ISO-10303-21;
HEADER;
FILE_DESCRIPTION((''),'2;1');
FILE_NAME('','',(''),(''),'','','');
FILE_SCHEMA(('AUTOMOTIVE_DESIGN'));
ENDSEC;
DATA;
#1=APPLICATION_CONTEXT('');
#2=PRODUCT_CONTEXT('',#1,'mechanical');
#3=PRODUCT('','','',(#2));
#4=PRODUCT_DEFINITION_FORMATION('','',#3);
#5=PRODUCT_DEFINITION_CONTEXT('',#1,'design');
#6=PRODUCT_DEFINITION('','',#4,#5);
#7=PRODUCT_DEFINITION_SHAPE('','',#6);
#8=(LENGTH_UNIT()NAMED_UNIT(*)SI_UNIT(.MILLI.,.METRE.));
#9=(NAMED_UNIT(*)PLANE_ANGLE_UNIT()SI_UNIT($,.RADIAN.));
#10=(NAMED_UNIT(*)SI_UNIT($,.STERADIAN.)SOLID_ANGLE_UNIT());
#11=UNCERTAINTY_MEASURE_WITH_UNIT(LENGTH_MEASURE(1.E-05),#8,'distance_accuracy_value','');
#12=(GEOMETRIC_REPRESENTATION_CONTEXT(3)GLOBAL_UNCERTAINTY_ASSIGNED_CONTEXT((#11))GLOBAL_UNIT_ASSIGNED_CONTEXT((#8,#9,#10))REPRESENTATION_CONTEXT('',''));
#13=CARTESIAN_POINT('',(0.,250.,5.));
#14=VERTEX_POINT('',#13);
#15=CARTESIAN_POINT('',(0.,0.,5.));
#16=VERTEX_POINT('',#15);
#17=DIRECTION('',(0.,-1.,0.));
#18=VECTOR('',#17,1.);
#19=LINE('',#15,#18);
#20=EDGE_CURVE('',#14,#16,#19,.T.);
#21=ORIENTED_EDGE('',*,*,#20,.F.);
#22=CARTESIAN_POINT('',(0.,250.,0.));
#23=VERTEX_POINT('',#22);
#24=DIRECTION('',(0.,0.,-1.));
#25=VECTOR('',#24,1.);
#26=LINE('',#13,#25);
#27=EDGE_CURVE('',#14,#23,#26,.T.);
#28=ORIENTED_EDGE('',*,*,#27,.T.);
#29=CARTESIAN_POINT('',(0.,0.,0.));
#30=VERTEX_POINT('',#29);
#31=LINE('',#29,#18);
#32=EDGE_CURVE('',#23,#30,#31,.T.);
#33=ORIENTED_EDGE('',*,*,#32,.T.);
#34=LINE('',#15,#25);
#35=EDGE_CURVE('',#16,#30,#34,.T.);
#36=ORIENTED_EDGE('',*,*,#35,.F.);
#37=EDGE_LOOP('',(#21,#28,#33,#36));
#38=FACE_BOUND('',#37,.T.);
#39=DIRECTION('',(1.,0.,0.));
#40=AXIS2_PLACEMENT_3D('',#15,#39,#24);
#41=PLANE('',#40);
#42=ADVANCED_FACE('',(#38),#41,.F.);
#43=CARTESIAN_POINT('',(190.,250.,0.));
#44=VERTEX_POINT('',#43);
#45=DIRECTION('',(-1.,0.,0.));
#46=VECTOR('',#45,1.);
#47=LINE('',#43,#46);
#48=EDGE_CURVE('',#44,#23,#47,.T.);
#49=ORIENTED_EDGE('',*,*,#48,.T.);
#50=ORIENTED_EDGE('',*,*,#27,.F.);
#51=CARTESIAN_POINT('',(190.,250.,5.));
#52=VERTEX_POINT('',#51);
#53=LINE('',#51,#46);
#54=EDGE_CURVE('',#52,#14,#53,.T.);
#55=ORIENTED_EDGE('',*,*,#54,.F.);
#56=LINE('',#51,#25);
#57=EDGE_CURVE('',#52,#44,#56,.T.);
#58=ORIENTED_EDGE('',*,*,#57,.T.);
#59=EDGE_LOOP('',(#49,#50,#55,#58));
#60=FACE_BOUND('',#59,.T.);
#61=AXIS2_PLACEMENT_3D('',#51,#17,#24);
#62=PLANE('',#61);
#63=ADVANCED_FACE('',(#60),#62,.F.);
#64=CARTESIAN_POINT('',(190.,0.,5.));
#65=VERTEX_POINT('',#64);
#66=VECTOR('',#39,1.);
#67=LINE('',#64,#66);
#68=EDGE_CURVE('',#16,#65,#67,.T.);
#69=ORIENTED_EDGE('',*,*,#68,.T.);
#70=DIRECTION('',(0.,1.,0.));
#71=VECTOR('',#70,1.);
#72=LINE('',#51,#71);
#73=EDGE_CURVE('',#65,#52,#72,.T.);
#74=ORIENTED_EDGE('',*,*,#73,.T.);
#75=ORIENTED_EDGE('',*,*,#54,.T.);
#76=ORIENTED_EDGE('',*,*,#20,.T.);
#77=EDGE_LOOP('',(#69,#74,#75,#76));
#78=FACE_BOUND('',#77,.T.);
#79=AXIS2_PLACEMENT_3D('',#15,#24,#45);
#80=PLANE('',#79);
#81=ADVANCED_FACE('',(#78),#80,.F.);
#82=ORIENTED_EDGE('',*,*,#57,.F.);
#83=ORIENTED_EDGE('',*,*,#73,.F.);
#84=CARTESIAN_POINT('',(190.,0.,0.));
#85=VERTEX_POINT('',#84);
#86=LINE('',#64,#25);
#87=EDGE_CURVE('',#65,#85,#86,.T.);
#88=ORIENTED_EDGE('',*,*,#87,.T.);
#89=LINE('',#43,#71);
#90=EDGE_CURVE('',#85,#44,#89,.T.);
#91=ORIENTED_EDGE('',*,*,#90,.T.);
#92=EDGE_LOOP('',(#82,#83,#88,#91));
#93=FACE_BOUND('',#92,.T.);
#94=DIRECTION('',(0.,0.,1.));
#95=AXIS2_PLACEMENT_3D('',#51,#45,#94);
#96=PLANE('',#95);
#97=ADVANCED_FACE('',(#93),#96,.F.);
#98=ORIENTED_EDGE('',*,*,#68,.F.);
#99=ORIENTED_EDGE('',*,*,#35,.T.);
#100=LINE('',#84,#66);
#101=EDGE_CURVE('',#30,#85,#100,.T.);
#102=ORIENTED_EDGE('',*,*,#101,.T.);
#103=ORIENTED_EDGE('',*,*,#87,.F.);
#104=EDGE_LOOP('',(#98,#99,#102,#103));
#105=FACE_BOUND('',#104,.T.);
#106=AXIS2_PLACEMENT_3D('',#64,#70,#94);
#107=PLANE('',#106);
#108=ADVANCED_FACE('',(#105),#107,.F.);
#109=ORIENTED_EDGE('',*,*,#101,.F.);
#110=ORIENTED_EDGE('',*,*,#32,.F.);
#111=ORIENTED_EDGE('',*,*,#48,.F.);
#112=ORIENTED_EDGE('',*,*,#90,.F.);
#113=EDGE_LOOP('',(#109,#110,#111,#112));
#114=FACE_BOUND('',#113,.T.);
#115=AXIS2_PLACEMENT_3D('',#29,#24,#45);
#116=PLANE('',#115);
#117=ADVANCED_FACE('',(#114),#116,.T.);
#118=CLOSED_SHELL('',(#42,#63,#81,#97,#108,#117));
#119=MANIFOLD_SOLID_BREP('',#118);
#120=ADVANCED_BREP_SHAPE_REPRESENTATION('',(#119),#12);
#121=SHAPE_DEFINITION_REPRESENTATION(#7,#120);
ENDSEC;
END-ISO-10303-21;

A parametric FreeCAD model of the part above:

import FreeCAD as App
import Part
import Sketcher
from FreeCAD import Vector


def add_polygon(sketch, points):
    """Adds a closed chain of lines whose ends are joined by coincident constraints."""
    first, n = sketch.GeometryCount, len(points)
    for a, b in zip(points, points[1:] + points[:1]):
        sketch.addGeometry(Part.LineSegment(App.Vector(*a, 0), App.Vector(*b, 0)), False)
    for i in range(n):
        sketch.addConstraint(Sketcher.Constraint("Coincident", first + i, 2, first + (i + 1) % n, 1))

doc = App.newDocument("Part")
body = doc.addObject("PartDesign::Body", "Body")

sketch1 = body.newObject("Sketcher::SketchObject", "Sketch")
sketch1.AttachmentSupport = (doc.getObject("XY_Plane"), [""])
sketch1.MapMode = "FlatFace"
add_polygon(sketch1, [(0, 250), (0, 0), (190, 0), (190, 250)])
sketch1.addConstraint([
    Sketcher.Constraint("Vertical", 0),
    Sketcher.Constraint("Horizontal", 1),
    Sketcher.Constraint("Vertical", 2),
    Sketcher.Constraint("Horizontal", 3),
    Sketcher.Constraint("Coincident", 0, 2, -1, 1),
    Sketcher.Constraint("DistanceX", 1, 1, 1, 2, 190.0),
    Sketcher.Constraint("DistanceY", 0, 2, 0, 1, 250.0),
])
pad1 = body.newObject("PartDesign::Pad", "Pad")
pad1.Profile = sketch1
pad1.Length = 5

doc.recompute()
